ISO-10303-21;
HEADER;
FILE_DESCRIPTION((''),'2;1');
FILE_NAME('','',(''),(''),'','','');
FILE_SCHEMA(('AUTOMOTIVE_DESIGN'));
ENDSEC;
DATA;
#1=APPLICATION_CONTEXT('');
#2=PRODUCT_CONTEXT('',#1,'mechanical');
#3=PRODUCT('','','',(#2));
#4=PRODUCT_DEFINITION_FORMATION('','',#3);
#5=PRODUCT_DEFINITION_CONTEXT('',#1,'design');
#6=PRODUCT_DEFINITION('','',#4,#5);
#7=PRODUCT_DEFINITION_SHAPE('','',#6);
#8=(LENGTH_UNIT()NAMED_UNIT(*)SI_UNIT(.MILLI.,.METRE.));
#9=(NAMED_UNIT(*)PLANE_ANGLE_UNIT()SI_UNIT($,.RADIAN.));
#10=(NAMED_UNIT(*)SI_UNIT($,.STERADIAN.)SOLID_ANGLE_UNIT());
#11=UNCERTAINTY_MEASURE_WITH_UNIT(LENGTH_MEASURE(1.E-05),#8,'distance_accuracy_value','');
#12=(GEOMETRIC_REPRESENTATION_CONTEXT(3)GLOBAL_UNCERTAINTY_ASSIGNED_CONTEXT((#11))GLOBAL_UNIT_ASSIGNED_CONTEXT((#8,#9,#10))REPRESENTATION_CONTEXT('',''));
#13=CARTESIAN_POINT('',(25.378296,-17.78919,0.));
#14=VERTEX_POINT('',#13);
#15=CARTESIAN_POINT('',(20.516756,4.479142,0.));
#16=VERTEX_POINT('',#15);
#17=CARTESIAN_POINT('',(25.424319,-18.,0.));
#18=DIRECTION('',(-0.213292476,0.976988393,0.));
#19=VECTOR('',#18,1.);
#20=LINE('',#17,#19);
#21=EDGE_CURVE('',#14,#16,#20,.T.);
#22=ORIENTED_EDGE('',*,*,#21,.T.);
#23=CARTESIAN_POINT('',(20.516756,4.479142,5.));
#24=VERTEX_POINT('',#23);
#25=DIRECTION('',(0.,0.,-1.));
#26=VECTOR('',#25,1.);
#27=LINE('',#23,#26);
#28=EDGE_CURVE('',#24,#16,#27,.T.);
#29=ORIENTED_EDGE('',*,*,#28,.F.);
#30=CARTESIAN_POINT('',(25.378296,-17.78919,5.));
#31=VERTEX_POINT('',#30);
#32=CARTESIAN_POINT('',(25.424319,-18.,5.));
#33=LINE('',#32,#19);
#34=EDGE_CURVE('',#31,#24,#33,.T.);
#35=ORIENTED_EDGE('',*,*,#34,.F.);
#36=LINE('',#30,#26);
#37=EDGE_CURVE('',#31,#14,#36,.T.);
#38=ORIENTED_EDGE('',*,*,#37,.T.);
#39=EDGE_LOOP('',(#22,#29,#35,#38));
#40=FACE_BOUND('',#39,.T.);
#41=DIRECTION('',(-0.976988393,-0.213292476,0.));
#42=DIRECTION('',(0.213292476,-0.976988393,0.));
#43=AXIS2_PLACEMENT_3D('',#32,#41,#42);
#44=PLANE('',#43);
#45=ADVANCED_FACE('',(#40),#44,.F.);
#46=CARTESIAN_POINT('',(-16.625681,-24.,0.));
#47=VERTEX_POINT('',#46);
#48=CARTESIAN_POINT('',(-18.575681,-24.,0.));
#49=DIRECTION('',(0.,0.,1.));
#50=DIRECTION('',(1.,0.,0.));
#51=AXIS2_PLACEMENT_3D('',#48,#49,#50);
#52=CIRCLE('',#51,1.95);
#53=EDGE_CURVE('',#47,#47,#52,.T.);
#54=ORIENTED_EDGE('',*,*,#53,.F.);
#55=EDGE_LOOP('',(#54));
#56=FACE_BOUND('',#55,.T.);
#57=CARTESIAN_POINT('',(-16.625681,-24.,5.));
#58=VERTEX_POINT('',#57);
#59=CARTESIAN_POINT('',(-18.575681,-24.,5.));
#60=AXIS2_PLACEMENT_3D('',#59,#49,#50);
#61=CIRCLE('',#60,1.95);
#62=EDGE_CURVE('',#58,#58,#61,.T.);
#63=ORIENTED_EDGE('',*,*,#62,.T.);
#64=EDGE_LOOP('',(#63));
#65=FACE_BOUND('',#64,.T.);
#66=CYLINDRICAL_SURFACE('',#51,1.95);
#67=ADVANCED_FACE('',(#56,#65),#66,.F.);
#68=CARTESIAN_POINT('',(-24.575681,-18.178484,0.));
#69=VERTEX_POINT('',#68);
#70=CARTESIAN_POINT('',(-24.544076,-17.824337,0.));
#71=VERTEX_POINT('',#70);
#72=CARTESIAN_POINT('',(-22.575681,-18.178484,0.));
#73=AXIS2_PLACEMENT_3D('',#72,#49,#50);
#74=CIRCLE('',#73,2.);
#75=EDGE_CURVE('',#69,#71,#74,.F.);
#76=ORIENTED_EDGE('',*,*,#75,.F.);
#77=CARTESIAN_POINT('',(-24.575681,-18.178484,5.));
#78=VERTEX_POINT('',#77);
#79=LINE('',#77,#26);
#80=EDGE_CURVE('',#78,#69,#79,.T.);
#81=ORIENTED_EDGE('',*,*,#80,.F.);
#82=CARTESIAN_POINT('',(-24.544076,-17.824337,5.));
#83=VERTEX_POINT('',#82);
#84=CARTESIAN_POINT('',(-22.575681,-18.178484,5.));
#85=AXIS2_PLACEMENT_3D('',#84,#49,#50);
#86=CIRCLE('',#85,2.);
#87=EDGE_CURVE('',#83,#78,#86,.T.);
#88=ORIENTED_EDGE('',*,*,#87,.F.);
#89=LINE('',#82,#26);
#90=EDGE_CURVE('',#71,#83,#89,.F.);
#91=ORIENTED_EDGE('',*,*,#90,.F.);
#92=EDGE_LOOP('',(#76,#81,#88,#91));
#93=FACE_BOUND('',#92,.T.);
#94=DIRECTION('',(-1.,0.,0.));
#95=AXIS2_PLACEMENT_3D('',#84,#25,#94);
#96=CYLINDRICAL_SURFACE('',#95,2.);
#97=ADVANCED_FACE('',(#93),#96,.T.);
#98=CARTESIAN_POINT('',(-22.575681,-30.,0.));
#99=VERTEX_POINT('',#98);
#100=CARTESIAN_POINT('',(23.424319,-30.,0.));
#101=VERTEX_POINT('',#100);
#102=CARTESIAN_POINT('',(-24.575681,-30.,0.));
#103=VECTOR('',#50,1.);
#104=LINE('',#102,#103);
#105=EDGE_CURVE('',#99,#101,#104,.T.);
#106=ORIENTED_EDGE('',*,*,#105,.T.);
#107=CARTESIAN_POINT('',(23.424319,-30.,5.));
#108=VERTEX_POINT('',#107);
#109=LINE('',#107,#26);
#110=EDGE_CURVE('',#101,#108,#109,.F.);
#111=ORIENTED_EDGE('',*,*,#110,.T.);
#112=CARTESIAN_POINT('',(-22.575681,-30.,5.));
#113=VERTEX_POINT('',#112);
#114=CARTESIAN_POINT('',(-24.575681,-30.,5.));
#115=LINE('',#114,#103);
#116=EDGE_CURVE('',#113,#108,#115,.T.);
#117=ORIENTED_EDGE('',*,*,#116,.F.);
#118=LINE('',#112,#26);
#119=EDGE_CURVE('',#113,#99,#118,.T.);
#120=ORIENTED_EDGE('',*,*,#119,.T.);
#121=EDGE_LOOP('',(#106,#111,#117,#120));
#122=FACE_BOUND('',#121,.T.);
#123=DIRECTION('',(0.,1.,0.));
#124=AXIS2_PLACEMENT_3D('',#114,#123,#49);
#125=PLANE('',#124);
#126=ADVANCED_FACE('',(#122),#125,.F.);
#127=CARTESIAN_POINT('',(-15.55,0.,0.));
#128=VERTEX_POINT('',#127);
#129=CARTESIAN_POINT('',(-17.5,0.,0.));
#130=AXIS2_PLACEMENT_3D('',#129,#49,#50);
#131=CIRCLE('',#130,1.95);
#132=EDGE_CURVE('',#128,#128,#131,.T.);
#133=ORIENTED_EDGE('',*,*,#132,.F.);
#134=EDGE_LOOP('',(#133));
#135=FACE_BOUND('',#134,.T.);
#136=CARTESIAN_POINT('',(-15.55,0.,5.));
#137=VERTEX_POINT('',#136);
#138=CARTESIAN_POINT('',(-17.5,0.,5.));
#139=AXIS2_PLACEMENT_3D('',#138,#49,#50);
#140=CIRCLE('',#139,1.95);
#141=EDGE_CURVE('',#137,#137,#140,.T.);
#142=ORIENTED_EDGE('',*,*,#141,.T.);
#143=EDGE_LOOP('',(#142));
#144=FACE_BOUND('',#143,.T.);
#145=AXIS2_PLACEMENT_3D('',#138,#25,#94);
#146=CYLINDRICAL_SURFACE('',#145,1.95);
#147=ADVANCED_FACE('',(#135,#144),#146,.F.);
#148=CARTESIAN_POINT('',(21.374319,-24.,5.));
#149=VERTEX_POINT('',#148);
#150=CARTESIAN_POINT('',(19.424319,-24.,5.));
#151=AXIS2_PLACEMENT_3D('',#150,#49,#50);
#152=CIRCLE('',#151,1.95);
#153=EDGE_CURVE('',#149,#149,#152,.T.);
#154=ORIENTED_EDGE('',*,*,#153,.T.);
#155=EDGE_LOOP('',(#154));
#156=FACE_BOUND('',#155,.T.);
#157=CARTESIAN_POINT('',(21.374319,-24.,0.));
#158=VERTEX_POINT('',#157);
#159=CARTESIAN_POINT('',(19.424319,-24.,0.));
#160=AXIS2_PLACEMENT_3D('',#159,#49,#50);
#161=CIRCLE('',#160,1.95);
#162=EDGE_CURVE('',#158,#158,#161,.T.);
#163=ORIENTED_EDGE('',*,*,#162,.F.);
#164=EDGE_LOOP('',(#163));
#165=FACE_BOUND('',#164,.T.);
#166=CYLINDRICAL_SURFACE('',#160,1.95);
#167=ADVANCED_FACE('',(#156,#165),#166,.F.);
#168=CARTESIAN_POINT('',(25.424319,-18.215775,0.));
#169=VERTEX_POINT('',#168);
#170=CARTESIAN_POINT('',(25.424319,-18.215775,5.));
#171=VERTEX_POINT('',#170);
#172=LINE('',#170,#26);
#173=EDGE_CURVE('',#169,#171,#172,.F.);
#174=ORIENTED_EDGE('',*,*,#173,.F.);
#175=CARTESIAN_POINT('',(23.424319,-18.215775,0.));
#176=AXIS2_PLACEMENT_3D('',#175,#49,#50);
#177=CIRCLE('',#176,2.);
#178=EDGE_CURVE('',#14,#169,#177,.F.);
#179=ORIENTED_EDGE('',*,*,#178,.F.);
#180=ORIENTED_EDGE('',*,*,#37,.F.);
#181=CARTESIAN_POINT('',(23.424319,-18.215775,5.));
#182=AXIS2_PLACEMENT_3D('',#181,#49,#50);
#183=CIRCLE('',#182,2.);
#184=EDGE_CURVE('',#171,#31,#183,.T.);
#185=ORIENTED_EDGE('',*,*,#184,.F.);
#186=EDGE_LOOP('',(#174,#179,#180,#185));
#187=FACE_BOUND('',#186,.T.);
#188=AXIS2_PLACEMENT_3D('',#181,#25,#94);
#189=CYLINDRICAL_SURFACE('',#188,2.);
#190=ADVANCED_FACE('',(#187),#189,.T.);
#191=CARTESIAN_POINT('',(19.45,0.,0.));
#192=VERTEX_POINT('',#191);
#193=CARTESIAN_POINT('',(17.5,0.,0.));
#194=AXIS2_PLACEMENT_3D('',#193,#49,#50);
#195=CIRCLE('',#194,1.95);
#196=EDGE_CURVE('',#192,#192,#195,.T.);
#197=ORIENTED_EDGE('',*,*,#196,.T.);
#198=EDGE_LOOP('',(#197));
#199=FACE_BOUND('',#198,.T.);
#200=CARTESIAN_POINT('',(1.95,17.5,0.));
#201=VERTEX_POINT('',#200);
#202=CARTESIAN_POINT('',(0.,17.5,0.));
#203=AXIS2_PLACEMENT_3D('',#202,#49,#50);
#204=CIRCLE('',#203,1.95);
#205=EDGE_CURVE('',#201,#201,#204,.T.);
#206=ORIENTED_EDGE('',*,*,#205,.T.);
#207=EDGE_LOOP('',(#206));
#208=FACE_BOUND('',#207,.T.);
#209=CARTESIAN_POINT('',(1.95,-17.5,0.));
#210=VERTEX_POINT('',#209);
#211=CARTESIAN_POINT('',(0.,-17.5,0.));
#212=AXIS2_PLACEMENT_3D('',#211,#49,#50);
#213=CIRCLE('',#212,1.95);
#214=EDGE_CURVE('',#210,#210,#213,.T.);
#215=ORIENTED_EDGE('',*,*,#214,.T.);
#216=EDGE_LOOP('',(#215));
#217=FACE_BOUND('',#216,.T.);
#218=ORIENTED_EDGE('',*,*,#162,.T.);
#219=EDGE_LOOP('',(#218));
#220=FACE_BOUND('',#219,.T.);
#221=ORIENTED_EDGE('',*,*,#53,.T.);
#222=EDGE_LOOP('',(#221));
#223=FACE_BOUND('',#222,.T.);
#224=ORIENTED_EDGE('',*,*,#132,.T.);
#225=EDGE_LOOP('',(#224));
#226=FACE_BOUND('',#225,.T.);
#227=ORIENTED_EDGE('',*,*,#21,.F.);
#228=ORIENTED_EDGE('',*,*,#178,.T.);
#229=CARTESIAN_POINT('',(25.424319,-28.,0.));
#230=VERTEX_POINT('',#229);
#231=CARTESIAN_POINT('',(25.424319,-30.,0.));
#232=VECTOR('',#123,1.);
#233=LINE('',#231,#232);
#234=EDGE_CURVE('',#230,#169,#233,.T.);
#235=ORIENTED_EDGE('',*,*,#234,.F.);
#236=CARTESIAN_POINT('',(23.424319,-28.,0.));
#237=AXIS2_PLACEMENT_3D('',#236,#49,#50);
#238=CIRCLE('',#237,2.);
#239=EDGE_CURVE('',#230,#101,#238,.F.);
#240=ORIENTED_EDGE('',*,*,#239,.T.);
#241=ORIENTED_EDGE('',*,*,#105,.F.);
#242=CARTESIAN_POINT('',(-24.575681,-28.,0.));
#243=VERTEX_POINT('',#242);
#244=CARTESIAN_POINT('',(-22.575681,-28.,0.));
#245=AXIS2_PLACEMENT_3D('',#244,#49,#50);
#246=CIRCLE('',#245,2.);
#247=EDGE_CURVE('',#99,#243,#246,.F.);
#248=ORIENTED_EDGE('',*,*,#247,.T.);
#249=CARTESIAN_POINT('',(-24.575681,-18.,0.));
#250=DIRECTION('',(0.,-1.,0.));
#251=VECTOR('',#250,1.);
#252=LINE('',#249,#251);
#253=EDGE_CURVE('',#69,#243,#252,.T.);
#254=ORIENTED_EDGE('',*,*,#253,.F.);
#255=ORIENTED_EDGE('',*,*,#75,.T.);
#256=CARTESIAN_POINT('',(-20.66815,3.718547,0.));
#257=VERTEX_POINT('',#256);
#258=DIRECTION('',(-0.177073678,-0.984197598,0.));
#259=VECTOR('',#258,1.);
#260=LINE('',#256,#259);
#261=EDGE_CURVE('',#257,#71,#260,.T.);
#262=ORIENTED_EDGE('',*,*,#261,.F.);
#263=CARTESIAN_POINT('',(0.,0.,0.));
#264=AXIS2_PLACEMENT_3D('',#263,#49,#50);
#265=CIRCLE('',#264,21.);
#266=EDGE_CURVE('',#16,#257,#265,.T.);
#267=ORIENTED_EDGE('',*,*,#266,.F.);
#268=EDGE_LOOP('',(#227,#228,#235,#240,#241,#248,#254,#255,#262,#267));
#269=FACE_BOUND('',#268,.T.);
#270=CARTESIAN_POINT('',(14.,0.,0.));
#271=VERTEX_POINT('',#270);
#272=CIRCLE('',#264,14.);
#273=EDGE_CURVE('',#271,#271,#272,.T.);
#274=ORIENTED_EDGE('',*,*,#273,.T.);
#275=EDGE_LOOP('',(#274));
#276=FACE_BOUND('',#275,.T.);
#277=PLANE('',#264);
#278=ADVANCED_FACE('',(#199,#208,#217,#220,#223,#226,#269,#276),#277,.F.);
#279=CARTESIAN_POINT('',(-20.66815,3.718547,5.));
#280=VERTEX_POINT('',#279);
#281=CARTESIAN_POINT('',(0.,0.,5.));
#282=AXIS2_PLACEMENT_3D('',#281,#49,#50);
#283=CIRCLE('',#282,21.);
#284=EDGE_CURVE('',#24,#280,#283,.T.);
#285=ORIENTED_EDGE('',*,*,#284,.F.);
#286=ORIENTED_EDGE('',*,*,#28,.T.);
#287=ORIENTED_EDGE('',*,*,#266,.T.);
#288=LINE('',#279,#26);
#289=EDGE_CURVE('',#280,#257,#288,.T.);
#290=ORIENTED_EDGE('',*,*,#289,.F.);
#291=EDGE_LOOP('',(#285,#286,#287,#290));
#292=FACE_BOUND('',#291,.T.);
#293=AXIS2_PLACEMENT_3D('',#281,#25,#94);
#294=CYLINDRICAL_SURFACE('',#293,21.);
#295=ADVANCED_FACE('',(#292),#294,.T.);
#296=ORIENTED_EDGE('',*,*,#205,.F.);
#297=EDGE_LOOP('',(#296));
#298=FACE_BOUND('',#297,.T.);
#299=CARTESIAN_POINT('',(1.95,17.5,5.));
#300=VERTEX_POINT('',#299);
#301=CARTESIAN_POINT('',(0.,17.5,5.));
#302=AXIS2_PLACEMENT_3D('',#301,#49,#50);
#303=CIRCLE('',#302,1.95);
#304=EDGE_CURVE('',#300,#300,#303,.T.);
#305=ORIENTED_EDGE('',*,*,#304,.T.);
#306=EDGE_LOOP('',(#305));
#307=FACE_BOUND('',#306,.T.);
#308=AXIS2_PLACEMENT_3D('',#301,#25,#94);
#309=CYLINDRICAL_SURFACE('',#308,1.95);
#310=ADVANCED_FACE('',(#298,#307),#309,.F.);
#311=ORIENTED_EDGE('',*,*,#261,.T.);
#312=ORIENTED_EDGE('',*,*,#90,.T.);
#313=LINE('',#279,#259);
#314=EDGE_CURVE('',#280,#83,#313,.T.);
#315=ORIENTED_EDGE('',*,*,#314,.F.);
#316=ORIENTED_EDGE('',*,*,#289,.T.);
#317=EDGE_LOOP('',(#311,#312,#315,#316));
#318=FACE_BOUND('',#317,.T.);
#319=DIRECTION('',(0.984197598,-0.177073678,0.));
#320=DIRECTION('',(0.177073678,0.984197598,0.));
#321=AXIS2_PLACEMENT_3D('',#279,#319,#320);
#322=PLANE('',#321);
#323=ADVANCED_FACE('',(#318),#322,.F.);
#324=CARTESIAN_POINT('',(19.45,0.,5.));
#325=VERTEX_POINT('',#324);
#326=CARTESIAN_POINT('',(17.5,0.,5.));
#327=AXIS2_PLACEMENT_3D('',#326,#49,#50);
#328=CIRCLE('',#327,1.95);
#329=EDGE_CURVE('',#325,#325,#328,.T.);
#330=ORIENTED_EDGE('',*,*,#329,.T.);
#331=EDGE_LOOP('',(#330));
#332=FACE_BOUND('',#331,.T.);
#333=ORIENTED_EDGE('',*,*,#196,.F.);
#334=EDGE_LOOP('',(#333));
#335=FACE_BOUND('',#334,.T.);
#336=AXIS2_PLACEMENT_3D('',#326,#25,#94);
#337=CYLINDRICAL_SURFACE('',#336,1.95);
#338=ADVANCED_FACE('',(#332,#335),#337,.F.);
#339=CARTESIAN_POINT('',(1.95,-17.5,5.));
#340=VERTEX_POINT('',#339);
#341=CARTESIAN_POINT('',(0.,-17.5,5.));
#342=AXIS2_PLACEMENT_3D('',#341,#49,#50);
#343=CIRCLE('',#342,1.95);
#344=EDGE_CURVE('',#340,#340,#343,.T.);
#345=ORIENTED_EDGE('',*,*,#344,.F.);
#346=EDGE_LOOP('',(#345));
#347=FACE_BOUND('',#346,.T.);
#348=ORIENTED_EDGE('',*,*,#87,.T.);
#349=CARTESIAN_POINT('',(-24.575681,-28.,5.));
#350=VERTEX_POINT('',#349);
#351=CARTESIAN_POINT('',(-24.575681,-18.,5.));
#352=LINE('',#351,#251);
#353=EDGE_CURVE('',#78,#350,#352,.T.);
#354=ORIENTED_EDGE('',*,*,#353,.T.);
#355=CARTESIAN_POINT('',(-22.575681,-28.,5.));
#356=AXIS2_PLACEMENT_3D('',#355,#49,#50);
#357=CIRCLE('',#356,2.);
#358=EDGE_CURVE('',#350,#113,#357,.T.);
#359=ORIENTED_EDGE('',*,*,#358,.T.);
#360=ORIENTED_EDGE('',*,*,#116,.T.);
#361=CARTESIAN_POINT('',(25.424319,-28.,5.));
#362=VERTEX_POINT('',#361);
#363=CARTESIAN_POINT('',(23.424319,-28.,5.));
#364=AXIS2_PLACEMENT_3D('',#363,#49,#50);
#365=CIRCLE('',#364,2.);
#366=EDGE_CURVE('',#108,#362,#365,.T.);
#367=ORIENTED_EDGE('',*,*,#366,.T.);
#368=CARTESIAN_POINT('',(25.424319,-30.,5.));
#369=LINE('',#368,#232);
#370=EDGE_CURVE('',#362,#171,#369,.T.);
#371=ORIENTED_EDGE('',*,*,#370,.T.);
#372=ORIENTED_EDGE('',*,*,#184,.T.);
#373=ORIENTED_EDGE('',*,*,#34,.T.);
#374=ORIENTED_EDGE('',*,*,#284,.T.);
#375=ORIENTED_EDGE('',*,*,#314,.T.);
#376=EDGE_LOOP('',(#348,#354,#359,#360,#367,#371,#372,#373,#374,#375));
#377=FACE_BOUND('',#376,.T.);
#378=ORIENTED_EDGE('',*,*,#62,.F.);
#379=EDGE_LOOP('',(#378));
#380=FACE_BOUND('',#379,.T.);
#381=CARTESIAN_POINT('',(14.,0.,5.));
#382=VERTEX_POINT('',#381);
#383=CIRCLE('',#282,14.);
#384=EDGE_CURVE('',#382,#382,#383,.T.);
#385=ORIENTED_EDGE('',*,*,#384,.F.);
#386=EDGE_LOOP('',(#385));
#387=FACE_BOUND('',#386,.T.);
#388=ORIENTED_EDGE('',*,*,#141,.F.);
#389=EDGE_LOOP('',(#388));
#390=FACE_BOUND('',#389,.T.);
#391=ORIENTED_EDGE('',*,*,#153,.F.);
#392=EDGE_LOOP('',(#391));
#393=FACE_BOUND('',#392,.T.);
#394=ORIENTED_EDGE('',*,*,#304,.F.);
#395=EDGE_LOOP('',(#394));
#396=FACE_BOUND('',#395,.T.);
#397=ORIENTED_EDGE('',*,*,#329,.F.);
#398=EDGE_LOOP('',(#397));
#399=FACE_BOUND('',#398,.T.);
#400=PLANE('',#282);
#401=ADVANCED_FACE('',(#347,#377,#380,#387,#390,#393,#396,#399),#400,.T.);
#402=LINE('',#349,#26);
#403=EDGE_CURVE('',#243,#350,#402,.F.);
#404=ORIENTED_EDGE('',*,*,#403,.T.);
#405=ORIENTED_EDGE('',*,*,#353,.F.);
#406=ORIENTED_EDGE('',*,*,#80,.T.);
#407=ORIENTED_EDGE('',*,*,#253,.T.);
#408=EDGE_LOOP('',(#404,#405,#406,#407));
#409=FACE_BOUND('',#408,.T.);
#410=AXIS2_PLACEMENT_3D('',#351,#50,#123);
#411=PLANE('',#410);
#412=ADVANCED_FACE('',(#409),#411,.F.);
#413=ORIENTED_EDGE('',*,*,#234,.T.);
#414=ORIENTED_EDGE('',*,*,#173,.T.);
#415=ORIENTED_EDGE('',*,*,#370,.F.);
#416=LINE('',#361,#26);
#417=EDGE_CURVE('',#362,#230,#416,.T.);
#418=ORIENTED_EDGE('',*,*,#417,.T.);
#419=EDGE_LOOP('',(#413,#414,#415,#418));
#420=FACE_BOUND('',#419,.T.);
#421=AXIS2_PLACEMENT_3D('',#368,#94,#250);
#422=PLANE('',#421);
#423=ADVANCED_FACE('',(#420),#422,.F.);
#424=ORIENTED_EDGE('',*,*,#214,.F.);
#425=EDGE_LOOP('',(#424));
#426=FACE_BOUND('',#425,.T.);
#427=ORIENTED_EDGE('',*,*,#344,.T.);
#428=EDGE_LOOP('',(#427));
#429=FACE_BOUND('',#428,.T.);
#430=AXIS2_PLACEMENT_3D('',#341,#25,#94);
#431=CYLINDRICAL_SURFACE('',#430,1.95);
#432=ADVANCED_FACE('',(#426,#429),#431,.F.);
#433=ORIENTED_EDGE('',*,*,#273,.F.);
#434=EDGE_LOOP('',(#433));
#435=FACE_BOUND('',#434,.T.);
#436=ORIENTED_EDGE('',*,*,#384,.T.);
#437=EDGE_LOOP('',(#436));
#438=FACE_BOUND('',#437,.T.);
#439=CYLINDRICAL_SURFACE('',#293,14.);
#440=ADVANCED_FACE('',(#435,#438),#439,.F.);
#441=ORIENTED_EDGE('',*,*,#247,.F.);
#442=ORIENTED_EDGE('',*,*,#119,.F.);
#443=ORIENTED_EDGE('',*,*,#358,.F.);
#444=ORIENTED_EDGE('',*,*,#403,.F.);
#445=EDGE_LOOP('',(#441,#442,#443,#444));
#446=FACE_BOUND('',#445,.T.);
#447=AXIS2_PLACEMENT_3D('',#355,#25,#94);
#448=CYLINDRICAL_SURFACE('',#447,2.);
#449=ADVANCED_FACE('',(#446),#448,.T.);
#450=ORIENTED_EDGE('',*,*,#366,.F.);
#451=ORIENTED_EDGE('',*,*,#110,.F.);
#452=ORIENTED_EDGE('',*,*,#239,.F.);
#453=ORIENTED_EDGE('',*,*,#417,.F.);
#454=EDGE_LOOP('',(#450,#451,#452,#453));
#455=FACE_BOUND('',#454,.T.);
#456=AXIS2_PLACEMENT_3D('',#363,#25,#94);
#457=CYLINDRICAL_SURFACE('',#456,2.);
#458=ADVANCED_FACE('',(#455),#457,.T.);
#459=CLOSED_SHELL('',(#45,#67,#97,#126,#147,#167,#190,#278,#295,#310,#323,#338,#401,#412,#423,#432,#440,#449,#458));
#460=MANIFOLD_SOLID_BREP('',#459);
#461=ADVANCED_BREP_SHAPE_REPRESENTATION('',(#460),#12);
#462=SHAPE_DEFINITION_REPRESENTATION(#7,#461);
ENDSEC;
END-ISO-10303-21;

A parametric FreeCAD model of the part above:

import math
import FreeCAD as App
import Part
import Sketcher

V = App.Vector


def edges_at(feature, points):
    """Names of the edges that pass closest to the given points."""
    edges = feature.Shape.Edges
    near = lambda p: min(range(len(edges)), key=lambda i: edges[i].distToShape(Part.Vertex(*p))[0])
    return sorted({f"Edge{near(p) + 1}" for p in points})

doc = App.newDocument("Part")
body = doc.addObject("PartDesign::Body", "Body")

sketch1 = body.newObject("Sketcher::SketchObject", "Sketch")
sketch1.AttachmentSupport = (doc.getObject("XY_Plane"), [""])
sketch1.MapMode = "FlatFace"
sketch1.addGeometry([
    Part.LineSegment(V(-20.7, 3.7, 0), V(-24.6, -18, 0)),
    Part.LineSegment(V(-24.6, -18, 0), V(-24.6, -30, 0)),
    Part.LineSegment(V(-24.6, -30, 0), V(25.4, -30, 0)),
    Part.LineSegment(V(25.4, -30, 0), V(25.4, -18, 0)),
    Part.LineSegment(V(25.4, -18, 0), V(20.5, 4.5, 0)),
    Part.ArcOfCircle(Part.Circle(V(0, 0, 0), V(0, 0, 1), 21), math.radians(12), math.radians(170)),
    Part.Circle(V(0, -17.5, 0), V(0, 0, 1), 1.9),
    Part.Circle(V(-17.5, 0, 0), V(0, 0, 1), 1.9),
    Part.Circle(V(0, 0, 0), V(0, 0, 1), 14),
    Part.Circle(V(17.5, 0, 0), V(0, 0, 1), 1.9),
    Part.Circle(V(0, 17.5, 0), V(0, 0, 1), 1.9),
], False)
sketch1.addConstraint([
    Sketcher.Constraint("Coincident", 0, 2, 1, 1),
    Sketcher.Constraint("Coincident", 1, 2, 2, 1),
    Sketcher.Constraint("Coincident", 2, 2, 3, 1),
    Sketcher.Constraint("Coincident", 3, 2, 4, 1),
    Sketcher.Constraint("Tangent", 4, 2, 5, 1),
    Sketcher.Constraint("Tangent", 5, 2, 0, 1),
    Sketcher.Constraint("Vertical", 1),
    Sketcher.Constraint("Horizontal", 2),
    Sketcher.Constraint("Vertical", 3),
    Sketcher.Constraint("Coincident", 5, 3, -1, 1),
    Sketcher.Constraint("Coincident", 8, 3, -1, 1),
    Sketcher.Constraint("Equal", 6, 7),
    Sketcher.Constraint("Equal", 7, 9),
    Sketcher.Constraint("Equal", 9, 10),
    Sketcher.Constraint("Symmetric", 7, 3, 9, 3, -1, 1),
    Sketcher.Constraint("Symmetric", 6, 3, 10, 3, -1, 1),
    Sketcher.Constraint("PointOnObject", 6, 3, -2),
    Sketcher.Constraint("PointOnObject", 7, 3, -1),
    Sketcher.Constraint("Horizontal", 0, 2, 3, 2),
    Sketcher.Constraint("Diameter", 8, 28.0),
    Sketcher.Constraint("Radius", 5, 21.0),
    Sketcher.Constraint("Diameter", 6, 3.9),
    Sketcher.Constraint("DistanceX", 2, 1, 2, 2, 50.0),
    Sketcher.Constraint("DistanceY", 1, 2, 1, 1, 12.0),
    Sketcher.Constraint("DistanceY", 0, 2, -1, 1, 18.0),
    Sketcher.Constraint("DistanceX", 7, 3, 9, 3, 35.0),
    Sketcher.Constraint("DistanceY", 6, 3, 10, 3, 35.0),
    Sketcher.Constraint("DistanceX", 0, 2, -1, 1, 24.575681),
])
pad1 = body.newObject("PartDesign::Pad", "Pad")
pad1.Profile = sketch1
pad1.Length = 5

sketch2 = body.newObject("Sketcher::SketchObject", "Sketch001")
sketch2.AttachmentSupport = (doc.getObject("XY_Plane"), [""])
sketch2.MapMode = "FlatFace"
sketch2.AttachmentOffset = App.Placement(V(0, 0, 5), App.Rotation())
sketch2.addGeometry([
    Part.Circle(V(19.4, -24, 0), V(0, 0, 1), 1.9),
    Part.Circle(V(-18.6, -24, 0), V(0, 0, 1), 1.9),
], False)
sketch2.addConstraint([
    Sketcher.Constraint("Equal", 0, 1),
    Sketcher.Constraint("Horizontal", 0, 3, 1, 3),
    Sketcher.Constraint("Diameter", 0, 3.9),
    Sketcher.Constraint("DistanceY", 0, 3, -1, 1, 24.0),
    Sketcher.Constraint("DistanceX", 1, 3, 0, 3, 38.0),
    Sketcher.Constraint("DistanceX", -1, 1, 0, 3, 19.424319),
])
pocket1 = body.newObject("PartDesign::Pocket", "Pocket")
pocket1.Profile = sketch2
pocket1.Type = "ThroughAll"
doc.recompute()

fillet = body.newObject("PartDesign::Fillet", "Fillet")
fillet.Base = (pocket1, edges_at(pocket1, [
    (25.424, -18, 2.5),
    (25.424, -30, 2.5),
    (-24.576, -30, 2.5),
    (-24.576, -18, 2.5),
]))
fillet.Radius = 2

doc.recompute()
